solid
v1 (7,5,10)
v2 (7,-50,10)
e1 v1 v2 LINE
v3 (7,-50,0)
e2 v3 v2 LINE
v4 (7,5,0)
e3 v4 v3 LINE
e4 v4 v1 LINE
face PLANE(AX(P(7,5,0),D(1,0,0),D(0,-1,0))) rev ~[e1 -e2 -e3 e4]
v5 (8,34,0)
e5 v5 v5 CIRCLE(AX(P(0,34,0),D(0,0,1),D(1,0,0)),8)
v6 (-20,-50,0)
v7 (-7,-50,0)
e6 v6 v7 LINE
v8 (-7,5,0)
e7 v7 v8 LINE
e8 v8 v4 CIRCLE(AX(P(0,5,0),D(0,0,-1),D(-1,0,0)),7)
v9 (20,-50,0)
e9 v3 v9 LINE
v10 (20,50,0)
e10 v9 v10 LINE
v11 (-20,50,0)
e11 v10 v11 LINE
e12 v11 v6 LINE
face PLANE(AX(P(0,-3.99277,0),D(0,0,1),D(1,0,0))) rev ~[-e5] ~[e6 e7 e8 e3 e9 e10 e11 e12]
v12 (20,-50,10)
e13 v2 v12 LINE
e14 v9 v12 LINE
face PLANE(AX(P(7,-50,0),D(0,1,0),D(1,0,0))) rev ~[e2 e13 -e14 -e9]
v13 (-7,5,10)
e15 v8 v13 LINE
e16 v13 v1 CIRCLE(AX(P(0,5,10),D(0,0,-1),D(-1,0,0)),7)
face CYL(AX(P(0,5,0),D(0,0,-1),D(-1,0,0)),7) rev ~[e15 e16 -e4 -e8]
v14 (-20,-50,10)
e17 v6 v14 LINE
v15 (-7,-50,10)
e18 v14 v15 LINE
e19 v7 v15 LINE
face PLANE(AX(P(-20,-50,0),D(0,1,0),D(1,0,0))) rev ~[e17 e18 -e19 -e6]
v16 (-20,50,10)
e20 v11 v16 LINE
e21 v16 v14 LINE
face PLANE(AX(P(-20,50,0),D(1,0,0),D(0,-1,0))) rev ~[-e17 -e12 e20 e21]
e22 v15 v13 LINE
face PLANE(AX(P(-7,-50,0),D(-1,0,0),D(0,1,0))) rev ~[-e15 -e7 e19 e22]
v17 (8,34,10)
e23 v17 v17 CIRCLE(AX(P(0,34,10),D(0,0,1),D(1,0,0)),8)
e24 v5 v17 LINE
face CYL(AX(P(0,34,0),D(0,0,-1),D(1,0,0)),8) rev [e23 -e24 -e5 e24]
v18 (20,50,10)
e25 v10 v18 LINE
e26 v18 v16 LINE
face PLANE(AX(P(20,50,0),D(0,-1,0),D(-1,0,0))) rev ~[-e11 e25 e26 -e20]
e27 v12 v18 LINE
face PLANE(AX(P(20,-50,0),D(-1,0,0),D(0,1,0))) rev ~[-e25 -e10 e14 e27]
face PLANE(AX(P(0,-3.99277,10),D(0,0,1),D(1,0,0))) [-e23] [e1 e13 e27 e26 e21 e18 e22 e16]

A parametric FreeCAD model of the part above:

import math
import FreeCAD as App
import Part
import Sketcher
from FreeCAD import Vector
Q = App.Units.Quantity

doc = App.newDocument("Part")
params = doc.addObject("Spreadsheet::Sheet", "Params")
for row, (alias, value) in enumerate([
    ("sketch1_diameter", "16 mm"),
    ("sketch1_radius", "7 mm"),
    ("sketch1_width", "13 mm"),
    ("sketch1_height", "100 mm"),
    ("sketch1_height2", "55 mm"),
    ("pad1_length", "10 mm"),
], start=1):
    params.set(f"A{row}", alias)
    params.set(f"B{row}", "=" + value)
    params.setAlias(f"B{row}", alias)

body = doc.addObject("PartDesign::Body", "Body")

# Sketch on XY plane
sketch1 = body.newObject("Sketcher::SketchObject", "Sketch")
sketch1.AttachmentSupport = (doc.getObject("XY_Plane"), [""])
sketch1.MapMode = "FlatFace"
sketch1.addGeometry([
    Part.LineSegment(Vector(7, -50, 0), Vector(20, -50, 0)),  # 0
    Part.LineSegment(Vector(20, -50, 0), Vector(20, 50, 0)),  # 1
    Part.LineSegment(Vector(20, 50, 0), Vector(-20, 50, 0)),  # 2
    Part.LineSegment(Vector(-20, 50, 0), Vector(-20, -50, 0)),  # 3
    Part.LineSegment(Vector(-20, -50, 0), Vector(-7, -50, 0)),  # 4
    Part.LineSegment(Vector(-7, -50, 0), Vector(-7, 5, 0)),  # 5
    Part.ArcOfCircle(Part.Circle(Vector(0, 5, 0), Vector(0, 0, 1), 7), math.radians(0), math.radians(180)),  # 6
    Part.LineSegment(Vector(7, 5, 0), Vector(7, -50, 0)),  # 7
    Part.Circle(Vector(0, 34, 0), Vector(0, 0, 1), 8),  # 8
], False)
sketch1.addConstraint([
    Sketcher.Constraint("Coincident", 0, 2, 1, 1),
    Sketcher.Constraint("Coincident", 1, 2, 2, 1),
    Sketcher.Constraint("Coincident", 2, 2, 3, 1),
    Sketcher.Constraint("Coincident", 3, 2, 4, 1),
    Sketcher.Constraint("Coincident", 4, 2, 5, 1),
    Sketcher.Constraint("Tangent", 5, 2, 6, 2),
    Sketcher.Constraint("Tangent", 6, 1, 7, 1),
    Sketcher.Constraint("Coincident", 7, 2, 0, 1),
    Sketcher.Constraint("Horizontal", 0),
    Sketcher.Constraint("Vertical", 1),
    Sketcher.Constraint("Horizontal", 2),
    Sketcher.Constraint("Vertical", 3),
    Sketcher.Constraint("Horizontal", 4),
    Sketcher.Constraint("Vertical", 5),
    Sketcher.Constraint("Vertical", 7),
    Sketcher.Constraint("Symmetric", 0, 2, 2, 2, -1, 1),
    Sketcher.Constraint("Symmetric", 4, 2, 7, 2, -2),
    Sketcher.Constraint("PointOnObject", 8, 3, -2),
    Sketcher.Constraint("Diameter", 8, Q("16 mm")),
    Sketcher.Constraint("Radius", 6, Q("7 mm")),
    Sketcher.Constraint("DistanceX", 0, 1, 0, 2, Q("13 mm")),
    Sketcher.Constraint("DistanceY", 1, 1, 1, 2, Q("100 mm")),
    Sketcher.Constraint("DistanceY", 5, 1, 5, 2, Q("55 mm")),
    Sketcher.Constraint("DistanceY", -1, 1, 8, 3, Q("34 mm")),
])
sketch1.setExpression("Constraints[18]", "Params.sketch1_diameter")
sketch1.setExpression("Constraints[19]", "Params.sketch1_radius")
sketch1.setExpression("Constraints[20]", "Params.sketch1_width")
sketch1.setExpression("Constraints[21]", "Params.sketch1_height")
sketch1.setExpression("Constraints[22]", "Params.sketch1_height2")
pad1 = body.newObject("PartDesign::Pad", "Pad")
pad1.Profile = sketch1
pad1.setExpression("Length", "Params.pad1_length")

doc.recompute()
